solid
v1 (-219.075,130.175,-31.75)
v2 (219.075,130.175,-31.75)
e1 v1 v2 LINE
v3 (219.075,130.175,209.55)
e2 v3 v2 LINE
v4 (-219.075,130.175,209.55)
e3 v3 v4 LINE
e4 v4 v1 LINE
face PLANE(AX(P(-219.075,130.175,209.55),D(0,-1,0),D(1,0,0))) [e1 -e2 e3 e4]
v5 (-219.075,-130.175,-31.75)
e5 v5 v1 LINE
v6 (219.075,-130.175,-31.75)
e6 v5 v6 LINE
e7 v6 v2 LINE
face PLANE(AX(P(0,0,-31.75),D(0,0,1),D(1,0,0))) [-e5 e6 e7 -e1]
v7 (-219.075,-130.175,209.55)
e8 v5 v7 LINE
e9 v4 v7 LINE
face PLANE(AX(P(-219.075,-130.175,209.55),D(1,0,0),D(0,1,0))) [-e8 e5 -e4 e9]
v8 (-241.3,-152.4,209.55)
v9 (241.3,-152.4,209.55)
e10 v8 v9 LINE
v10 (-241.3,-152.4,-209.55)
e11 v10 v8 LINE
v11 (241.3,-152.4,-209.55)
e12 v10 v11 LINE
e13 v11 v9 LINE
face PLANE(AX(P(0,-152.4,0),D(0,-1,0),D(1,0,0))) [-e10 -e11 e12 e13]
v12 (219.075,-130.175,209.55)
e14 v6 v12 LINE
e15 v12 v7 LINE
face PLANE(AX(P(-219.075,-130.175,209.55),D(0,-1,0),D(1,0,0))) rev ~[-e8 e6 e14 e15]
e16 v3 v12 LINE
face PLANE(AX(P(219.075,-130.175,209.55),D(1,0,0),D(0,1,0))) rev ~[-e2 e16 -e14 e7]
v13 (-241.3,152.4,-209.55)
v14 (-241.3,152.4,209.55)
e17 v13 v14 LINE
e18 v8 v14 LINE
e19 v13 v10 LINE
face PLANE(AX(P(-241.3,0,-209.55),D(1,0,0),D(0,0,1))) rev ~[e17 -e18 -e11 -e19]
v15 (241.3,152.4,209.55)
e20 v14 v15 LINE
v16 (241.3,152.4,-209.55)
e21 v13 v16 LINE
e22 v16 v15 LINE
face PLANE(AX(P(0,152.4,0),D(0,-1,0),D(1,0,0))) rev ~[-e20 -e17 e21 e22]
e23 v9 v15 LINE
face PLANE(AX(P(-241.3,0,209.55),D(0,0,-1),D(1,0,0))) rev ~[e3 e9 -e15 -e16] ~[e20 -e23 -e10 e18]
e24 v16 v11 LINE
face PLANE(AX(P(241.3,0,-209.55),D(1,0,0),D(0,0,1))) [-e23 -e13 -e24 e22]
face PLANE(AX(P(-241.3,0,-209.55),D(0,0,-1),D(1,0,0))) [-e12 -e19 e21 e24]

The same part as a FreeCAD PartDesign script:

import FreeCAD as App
import Part
import Sketcher
Q = App.Units.Quantity


def add_polygon(sketch, points):
    """Adds a closed chain of lines whose ends are joined by coincident constraints."""
    first, n = sketch.GeometryCount, len(points)
    for a, b in zip(points, points[1:] + points[:1]):
        sketch.addGeometry(Part.LineSegment(App.Vector(*a, 0), App.Vector(*b, 0)), False)
    for i in range(n):
        sketch.addConstraint(Sketcher.Constraint("Coincident", first + i, 2, first + (i + 1) % n, 1))

doc = App.newDocument("Part")
body = doc.addObject("PartDesign::Body", "Body")

# Sketch on XZ plane
sketch1 = body.newObject("Sketcher::SketchObject", "Sketch")
sketch1.AttachmentSupport = (doc.getObject("XZ_Plane"), [""])
sketch1.MapMode = "FlatFace"
add_polygon(sketch1, [(-241.3, 209.55), (-241.3, -209.55), (241.3, -209.55), (241.3, 209.55)])  # lines 0-3
sketch1.addConstraint(Sketcher.Constraint("Vertical", 0))
sketch1.addConstraint(Sketcher.Constraint("Horizontal", 1))
sketch1.addConstraint(Sketcher.Constraint("Vertical", 2))
sketch1.addConstraint(Sketcher.Constraint("Horizontal", 3))
sketch1.addConstraint(Sketcher.Constraint("Symmetric", 0, 2, 2, 2, -1, 1))
sketch1.addConstraint(Sketcher.Constraint("DistanceX", 1, 1, 1, 2, Q("19 in")))
sketch1.addConstraint(Sketcher.Constraint("DistanceY", 0, 2, 0, 1, Q("16.5 in")))
pad1 = body.newObject("PartDesign::Pad", "Pad")
pad1.Profile = sketch1
pad1.Length = Q("12 in")
pad1.Midplane = True

# Sketch on XY plane
sketch2 = body.newObject("Sketcher::SketchObject", "Sketch001")
sketch2.AttachmentSupport = (doc.getObject("XY_Plane"), [""])
sketch2.MapMode = "FlatFace"
sketch2.AttachmentOffset = App.Placement(App.Vector(0, 0, 8.25 * 25.4), App.Rotation())
add_polygon(sketch2, [(-219.075, 130.175), (-219.075, -130.175), (219.075, -130.175), (219.075, 130.175)])  # lines 0-3
sketch2.addConstraint(Sketcher.Constraint("Vertical", 0))
sketch2.addConstraint(Sketcher.Constraint("Horizontal", 1))
sketch2.addConstraint(Sketcher.Constraint("Vertical", 2))
sketch2.addConstraint(Sketcher.Constraint("Horizontal", 3))
sketch2.addConstraint(Sketcher.Constraint("Symmetric", 0, 2, 2, 2, -1, 1))
sketch2.addConstraint(Sketcher.Constraint("DistanceX", 1, 1, 1, 2, Q("17.25 in")))
sketch2.addConstraint(Sketcher.Constraint("DistanceY", 0, 2, 0, 1, Q("10.25 in")))
pocket1 = body.newObject("PartDesign::Pocket", "Pocket")
pocket1.Profile = sketch2
pocket1.Length = Q("19 in")
pocket1.Midplane = True

doc.recompute()
